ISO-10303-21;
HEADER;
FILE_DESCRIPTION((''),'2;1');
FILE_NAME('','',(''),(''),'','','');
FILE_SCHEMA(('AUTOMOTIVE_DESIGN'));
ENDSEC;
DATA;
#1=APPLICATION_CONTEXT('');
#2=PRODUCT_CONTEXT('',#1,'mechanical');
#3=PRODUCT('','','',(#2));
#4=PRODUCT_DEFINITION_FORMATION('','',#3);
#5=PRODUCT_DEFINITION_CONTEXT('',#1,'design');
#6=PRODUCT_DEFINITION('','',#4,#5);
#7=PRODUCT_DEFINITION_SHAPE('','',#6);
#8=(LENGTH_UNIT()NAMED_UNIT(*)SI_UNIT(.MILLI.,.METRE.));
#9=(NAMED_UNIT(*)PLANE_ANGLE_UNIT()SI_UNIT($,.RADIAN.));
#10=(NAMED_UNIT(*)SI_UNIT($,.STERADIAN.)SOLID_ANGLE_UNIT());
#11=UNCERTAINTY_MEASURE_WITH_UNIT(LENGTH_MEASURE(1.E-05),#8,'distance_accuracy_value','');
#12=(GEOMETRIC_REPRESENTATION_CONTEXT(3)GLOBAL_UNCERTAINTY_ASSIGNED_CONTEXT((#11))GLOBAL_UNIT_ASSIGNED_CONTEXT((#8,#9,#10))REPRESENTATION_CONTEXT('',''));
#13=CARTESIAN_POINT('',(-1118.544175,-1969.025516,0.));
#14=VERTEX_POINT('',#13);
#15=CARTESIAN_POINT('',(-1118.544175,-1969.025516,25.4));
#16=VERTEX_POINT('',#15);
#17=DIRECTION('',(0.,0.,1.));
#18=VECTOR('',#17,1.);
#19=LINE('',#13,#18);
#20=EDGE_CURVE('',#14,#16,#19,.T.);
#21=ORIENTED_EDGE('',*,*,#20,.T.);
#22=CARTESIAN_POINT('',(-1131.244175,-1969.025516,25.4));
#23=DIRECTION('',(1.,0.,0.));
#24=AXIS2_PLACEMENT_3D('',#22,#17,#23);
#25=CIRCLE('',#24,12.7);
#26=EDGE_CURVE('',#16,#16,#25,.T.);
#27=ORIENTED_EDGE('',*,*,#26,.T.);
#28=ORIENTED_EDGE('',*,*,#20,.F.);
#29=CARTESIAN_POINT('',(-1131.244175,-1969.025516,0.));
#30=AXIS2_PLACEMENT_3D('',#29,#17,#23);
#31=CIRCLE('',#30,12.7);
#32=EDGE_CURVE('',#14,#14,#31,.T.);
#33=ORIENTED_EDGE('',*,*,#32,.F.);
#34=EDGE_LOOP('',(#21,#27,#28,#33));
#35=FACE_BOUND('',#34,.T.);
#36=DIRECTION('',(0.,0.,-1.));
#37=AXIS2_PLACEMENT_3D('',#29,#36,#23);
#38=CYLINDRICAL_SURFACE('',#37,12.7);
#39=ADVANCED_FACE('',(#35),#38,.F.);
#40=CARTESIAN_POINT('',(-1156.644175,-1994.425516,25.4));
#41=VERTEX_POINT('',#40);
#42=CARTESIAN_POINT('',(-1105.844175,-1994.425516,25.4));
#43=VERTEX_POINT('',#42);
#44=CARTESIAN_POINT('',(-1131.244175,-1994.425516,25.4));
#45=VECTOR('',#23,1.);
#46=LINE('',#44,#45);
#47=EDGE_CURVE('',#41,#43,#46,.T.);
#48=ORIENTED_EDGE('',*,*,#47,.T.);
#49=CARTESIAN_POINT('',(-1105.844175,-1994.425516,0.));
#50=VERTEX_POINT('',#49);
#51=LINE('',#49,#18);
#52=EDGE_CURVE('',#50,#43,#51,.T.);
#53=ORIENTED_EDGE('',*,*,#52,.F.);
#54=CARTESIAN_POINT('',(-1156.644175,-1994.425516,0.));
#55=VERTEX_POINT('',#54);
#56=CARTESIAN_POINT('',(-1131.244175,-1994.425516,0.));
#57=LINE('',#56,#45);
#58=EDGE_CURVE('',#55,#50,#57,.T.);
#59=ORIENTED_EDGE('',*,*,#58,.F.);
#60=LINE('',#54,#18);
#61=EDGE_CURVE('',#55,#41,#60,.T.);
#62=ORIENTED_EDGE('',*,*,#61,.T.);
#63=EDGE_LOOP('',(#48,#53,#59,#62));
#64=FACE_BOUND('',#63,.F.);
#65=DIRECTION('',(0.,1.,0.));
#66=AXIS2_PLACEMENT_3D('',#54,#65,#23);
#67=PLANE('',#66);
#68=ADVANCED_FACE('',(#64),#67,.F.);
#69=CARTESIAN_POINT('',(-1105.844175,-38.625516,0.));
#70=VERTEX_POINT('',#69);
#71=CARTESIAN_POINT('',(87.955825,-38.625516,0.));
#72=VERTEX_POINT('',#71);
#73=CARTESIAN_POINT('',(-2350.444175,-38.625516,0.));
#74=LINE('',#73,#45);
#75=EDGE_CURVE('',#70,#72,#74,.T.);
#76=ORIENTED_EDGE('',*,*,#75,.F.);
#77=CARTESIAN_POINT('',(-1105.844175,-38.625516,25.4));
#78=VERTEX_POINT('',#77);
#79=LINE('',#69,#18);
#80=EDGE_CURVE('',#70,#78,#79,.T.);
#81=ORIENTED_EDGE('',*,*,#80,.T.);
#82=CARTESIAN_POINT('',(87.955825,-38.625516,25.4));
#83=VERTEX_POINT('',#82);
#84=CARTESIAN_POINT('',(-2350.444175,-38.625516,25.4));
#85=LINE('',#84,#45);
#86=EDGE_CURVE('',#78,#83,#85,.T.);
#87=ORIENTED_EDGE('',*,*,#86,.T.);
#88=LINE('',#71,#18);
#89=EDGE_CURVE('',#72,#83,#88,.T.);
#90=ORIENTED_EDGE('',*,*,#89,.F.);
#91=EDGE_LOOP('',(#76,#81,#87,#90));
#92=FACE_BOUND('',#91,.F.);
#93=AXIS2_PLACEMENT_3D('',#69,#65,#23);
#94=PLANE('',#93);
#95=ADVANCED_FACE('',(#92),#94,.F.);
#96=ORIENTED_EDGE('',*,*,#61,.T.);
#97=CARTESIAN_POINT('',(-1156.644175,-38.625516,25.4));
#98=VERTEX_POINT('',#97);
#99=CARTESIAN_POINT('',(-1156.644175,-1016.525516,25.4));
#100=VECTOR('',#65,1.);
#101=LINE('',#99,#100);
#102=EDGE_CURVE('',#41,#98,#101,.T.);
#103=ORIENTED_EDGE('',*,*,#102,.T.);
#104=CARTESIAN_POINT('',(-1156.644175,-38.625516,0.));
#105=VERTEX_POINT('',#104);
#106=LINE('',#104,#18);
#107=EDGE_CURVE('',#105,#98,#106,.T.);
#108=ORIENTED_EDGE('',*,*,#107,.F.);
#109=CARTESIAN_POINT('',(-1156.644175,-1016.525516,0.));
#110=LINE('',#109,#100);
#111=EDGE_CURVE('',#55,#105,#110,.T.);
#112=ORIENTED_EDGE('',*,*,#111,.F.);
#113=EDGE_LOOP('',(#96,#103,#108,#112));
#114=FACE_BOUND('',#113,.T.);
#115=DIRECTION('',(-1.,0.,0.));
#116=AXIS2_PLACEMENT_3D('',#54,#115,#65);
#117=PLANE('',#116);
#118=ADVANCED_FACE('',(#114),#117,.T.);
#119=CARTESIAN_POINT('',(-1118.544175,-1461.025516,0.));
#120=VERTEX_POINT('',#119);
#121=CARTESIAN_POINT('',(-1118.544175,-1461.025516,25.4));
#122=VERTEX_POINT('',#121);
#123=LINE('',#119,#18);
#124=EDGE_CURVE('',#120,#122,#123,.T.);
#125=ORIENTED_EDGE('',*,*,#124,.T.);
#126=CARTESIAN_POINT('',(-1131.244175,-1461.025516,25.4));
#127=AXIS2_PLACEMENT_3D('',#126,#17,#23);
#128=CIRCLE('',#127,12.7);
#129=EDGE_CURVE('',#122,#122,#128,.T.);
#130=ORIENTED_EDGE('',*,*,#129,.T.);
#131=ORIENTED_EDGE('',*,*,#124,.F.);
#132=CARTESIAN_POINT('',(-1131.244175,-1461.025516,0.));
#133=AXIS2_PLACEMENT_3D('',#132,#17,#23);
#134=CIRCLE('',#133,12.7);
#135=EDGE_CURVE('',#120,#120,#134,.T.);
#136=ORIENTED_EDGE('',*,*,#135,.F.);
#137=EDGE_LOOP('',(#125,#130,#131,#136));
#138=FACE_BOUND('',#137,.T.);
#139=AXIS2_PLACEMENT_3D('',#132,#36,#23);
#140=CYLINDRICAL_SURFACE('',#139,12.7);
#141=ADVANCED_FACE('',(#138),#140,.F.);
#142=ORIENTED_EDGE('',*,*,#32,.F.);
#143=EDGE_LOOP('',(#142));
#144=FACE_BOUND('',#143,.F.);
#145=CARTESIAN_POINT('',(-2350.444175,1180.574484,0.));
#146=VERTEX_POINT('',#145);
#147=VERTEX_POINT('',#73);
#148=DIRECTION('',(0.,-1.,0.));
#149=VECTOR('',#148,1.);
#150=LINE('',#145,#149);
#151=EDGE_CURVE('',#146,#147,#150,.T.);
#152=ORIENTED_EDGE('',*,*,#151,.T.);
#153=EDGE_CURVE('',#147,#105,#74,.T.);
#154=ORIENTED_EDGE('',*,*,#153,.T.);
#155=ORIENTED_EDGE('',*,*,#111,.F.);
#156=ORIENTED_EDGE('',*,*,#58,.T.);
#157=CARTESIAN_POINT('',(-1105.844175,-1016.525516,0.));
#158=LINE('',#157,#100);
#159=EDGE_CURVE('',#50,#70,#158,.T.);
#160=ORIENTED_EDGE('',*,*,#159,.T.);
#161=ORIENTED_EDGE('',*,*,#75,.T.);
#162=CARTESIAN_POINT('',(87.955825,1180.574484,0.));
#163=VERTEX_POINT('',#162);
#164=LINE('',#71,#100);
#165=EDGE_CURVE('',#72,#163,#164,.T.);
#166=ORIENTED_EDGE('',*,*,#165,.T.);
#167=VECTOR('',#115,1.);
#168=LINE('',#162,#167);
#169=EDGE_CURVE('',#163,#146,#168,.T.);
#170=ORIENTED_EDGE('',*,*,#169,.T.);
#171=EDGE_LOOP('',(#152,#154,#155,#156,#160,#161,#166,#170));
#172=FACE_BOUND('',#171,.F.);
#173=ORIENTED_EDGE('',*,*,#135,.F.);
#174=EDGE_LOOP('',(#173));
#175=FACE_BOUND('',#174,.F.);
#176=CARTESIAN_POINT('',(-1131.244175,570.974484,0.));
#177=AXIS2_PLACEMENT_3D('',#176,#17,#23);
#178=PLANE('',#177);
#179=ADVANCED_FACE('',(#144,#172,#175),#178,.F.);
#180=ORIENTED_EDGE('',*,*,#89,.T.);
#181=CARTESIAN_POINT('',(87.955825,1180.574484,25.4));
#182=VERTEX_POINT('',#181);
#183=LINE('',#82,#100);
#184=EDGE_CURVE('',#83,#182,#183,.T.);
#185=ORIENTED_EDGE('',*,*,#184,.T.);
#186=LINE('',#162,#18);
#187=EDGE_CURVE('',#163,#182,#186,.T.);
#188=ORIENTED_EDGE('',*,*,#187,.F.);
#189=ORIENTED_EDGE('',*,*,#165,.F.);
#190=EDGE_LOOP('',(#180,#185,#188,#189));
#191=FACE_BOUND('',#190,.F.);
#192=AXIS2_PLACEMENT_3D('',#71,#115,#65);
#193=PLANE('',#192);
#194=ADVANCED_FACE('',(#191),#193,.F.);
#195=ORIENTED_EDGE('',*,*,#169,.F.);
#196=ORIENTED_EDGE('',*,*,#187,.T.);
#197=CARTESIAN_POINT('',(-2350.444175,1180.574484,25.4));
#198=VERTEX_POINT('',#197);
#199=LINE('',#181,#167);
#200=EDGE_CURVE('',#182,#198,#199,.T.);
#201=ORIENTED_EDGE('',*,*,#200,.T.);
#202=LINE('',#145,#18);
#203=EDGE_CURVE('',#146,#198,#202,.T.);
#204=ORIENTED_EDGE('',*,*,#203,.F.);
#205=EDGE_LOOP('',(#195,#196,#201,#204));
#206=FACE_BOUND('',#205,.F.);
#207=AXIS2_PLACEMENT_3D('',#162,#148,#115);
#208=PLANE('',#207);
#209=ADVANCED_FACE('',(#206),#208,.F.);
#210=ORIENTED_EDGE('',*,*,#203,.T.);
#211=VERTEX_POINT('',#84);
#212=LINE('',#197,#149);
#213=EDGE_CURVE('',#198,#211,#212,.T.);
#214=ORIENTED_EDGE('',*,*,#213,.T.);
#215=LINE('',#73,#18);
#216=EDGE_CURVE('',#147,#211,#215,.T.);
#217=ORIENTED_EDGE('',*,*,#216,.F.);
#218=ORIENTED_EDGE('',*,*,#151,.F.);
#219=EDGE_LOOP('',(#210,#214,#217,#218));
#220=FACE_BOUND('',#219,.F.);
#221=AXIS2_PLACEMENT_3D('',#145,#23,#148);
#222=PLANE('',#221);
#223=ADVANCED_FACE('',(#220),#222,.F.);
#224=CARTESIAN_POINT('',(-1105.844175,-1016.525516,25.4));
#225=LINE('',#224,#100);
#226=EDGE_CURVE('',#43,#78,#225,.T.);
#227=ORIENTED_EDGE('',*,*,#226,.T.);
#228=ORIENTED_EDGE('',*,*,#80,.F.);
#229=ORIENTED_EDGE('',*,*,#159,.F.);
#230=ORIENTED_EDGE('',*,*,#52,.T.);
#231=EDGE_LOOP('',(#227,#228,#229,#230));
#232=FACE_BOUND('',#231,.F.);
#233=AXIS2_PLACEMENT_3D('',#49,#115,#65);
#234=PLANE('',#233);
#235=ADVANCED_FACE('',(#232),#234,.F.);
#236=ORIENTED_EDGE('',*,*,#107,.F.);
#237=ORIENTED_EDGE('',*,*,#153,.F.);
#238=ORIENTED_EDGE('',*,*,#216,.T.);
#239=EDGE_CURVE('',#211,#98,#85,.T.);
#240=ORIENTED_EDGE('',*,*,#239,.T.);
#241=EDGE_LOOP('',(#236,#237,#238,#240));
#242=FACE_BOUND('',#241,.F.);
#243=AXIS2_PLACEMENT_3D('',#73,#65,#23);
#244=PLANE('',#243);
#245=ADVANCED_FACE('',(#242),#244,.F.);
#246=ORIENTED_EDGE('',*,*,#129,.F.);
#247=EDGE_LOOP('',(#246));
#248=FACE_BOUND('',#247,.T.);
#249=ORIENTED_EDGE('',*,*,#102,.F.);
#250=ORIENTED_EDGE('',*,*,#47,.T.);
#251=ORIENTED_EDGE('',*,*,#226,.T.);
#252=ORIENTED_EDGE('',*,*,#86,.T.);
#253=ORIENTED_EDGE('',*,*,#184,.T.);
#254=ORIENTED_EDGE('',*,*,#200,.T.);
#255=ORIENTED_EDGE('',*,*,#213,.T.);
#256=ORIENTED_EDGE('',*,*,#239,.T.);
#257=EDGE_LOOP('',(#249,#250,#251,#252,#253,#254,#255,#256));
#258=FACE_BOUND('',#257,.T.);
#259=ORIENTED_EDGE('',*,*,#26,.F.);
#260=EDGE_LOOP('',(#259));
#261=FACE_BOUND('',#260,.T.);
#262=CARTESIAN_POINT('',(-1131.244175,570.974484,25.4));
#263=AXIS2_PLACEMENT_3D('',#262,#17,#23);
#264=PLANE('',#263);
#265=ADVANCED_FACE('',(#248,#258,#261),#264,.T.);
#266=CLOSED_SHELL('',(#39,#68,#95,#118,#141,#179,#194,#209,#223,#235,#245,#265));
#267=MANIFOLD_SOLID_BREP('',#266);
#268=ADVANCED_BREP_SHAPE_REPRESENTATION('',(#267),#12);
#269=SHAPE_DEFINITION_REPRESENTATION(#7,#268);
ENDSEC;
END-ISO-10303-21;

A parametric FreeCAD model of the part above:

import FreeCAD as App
import Part
import Sketcher
Q = App.Units.Quantity


def add_polygon(sketch, points):
    """Adds a closed chain of lines whose ends are joined by coincident constraints."""
    first, n = sketch.GeometryCount, len(points)
    for a, b in zip(points, points[1:] + points[:1]):
        sketch.addGeometry(Part.LineSegment(App.Vector(*a, 0), App.Vector(*b, 0)), False)
    for i in range(n):
        sketch.addConstraint(Sketcher.Constraint("Coincident", first + i, 2, first + (i + 1) % n, 1))

doc = App.newDocument("Part")
body = doc.addObject("PartDesign::Body", "Body")

# Sketch on XY plane
sketch1 = doc.addObject("Sketcher::SketchObject", "Sketch")
body.addObject(sketch1)
sketch1.AttachmentSupport = (doc.XY_Plane, [""])
sketch1.MapMode = "FlatFace"
add_polygon(sketch1, [(88, 1181), (-2350, 1181), (-2350, -39), (-1157, -39), (-1157, -1994), (-1106, -1994), (-1106, -39), (88, -39)])  # lines 0-7
sketch1.addGeometry(Part.Circle(App.Vector(-1131, -1969, 0), App.Vector(0, 0, 1), 13), False)  # 8
sketch1.addGeometry(Part.Circle(App.Vector(-1131, -1461, 0), App.Vector(0, 0, 1), 13), False)  # 9
sketch1.addConstraint([
    Sketcher.Constraint("Horizontal", 0),
    Sketcher.Constraint("Vertical", 1),
    Sketcher.Constraint("Horizontal", 2),
    Sketcher.Constraint("Vertical", 3),
    Sketcher.Constraint("Horizontal", 4),
    Sketcher.Constraint("Vertical", 5),
    Sketcher.Constraint("Horizontal", 6),
    Sketcher.Constraint("Vertical", 7),
    Sketcher.Constraint("Equal", 8, 9),
    Sketcher.Constraint("Horizontal", 2, 2, 5, 2),
    Sketcher.Constraint("Vertical", 8, 3, 9, 3),
    Sketcher.Constraint("Equal", 2, 6),
    Sketcher.Constraint("Diameter", 8, Q("1 in")),
    Sketcher.Constraint("DistanceX", 0, 2, 0, 1, Q("96 in")),
    Sketcher.Constraint("DistanceX", 2, 1, 2, 2, Q("47 in")),
    Sketcher.Constraint("DistanceY", 1, 2, 1, 1, Q("48 in")),
    Sketcher.Constraint("DistanceY", 3, 2, 3, 1, Q("77 in")),
    Sketcher.Constraint("DistanceY", 8, 3, 9, 3, Q("20 in")),
    Sketcher.Constraint("DistanceX", 0, 2, 9, 3, Q("48 in")),
    Sketcher.Constraint("DistanceY", 9, 3, 0, 2, Q("104 in")),
    Sketcher.Constraint("DistanceX", 8, 3, -1, 1, Q("1131.244175 mm")),
    Sketcher.Constraint("DistanceY", 8, 3, -1, 1, Q("1969.025516 mm")),
])
pad1 = doc.addObject("PartDesign::Pad", "Pad")
body.addObject(pad1)
pad1.Profile = sketch1
pad1.Length = Q("1 in")

doc.recompute()
